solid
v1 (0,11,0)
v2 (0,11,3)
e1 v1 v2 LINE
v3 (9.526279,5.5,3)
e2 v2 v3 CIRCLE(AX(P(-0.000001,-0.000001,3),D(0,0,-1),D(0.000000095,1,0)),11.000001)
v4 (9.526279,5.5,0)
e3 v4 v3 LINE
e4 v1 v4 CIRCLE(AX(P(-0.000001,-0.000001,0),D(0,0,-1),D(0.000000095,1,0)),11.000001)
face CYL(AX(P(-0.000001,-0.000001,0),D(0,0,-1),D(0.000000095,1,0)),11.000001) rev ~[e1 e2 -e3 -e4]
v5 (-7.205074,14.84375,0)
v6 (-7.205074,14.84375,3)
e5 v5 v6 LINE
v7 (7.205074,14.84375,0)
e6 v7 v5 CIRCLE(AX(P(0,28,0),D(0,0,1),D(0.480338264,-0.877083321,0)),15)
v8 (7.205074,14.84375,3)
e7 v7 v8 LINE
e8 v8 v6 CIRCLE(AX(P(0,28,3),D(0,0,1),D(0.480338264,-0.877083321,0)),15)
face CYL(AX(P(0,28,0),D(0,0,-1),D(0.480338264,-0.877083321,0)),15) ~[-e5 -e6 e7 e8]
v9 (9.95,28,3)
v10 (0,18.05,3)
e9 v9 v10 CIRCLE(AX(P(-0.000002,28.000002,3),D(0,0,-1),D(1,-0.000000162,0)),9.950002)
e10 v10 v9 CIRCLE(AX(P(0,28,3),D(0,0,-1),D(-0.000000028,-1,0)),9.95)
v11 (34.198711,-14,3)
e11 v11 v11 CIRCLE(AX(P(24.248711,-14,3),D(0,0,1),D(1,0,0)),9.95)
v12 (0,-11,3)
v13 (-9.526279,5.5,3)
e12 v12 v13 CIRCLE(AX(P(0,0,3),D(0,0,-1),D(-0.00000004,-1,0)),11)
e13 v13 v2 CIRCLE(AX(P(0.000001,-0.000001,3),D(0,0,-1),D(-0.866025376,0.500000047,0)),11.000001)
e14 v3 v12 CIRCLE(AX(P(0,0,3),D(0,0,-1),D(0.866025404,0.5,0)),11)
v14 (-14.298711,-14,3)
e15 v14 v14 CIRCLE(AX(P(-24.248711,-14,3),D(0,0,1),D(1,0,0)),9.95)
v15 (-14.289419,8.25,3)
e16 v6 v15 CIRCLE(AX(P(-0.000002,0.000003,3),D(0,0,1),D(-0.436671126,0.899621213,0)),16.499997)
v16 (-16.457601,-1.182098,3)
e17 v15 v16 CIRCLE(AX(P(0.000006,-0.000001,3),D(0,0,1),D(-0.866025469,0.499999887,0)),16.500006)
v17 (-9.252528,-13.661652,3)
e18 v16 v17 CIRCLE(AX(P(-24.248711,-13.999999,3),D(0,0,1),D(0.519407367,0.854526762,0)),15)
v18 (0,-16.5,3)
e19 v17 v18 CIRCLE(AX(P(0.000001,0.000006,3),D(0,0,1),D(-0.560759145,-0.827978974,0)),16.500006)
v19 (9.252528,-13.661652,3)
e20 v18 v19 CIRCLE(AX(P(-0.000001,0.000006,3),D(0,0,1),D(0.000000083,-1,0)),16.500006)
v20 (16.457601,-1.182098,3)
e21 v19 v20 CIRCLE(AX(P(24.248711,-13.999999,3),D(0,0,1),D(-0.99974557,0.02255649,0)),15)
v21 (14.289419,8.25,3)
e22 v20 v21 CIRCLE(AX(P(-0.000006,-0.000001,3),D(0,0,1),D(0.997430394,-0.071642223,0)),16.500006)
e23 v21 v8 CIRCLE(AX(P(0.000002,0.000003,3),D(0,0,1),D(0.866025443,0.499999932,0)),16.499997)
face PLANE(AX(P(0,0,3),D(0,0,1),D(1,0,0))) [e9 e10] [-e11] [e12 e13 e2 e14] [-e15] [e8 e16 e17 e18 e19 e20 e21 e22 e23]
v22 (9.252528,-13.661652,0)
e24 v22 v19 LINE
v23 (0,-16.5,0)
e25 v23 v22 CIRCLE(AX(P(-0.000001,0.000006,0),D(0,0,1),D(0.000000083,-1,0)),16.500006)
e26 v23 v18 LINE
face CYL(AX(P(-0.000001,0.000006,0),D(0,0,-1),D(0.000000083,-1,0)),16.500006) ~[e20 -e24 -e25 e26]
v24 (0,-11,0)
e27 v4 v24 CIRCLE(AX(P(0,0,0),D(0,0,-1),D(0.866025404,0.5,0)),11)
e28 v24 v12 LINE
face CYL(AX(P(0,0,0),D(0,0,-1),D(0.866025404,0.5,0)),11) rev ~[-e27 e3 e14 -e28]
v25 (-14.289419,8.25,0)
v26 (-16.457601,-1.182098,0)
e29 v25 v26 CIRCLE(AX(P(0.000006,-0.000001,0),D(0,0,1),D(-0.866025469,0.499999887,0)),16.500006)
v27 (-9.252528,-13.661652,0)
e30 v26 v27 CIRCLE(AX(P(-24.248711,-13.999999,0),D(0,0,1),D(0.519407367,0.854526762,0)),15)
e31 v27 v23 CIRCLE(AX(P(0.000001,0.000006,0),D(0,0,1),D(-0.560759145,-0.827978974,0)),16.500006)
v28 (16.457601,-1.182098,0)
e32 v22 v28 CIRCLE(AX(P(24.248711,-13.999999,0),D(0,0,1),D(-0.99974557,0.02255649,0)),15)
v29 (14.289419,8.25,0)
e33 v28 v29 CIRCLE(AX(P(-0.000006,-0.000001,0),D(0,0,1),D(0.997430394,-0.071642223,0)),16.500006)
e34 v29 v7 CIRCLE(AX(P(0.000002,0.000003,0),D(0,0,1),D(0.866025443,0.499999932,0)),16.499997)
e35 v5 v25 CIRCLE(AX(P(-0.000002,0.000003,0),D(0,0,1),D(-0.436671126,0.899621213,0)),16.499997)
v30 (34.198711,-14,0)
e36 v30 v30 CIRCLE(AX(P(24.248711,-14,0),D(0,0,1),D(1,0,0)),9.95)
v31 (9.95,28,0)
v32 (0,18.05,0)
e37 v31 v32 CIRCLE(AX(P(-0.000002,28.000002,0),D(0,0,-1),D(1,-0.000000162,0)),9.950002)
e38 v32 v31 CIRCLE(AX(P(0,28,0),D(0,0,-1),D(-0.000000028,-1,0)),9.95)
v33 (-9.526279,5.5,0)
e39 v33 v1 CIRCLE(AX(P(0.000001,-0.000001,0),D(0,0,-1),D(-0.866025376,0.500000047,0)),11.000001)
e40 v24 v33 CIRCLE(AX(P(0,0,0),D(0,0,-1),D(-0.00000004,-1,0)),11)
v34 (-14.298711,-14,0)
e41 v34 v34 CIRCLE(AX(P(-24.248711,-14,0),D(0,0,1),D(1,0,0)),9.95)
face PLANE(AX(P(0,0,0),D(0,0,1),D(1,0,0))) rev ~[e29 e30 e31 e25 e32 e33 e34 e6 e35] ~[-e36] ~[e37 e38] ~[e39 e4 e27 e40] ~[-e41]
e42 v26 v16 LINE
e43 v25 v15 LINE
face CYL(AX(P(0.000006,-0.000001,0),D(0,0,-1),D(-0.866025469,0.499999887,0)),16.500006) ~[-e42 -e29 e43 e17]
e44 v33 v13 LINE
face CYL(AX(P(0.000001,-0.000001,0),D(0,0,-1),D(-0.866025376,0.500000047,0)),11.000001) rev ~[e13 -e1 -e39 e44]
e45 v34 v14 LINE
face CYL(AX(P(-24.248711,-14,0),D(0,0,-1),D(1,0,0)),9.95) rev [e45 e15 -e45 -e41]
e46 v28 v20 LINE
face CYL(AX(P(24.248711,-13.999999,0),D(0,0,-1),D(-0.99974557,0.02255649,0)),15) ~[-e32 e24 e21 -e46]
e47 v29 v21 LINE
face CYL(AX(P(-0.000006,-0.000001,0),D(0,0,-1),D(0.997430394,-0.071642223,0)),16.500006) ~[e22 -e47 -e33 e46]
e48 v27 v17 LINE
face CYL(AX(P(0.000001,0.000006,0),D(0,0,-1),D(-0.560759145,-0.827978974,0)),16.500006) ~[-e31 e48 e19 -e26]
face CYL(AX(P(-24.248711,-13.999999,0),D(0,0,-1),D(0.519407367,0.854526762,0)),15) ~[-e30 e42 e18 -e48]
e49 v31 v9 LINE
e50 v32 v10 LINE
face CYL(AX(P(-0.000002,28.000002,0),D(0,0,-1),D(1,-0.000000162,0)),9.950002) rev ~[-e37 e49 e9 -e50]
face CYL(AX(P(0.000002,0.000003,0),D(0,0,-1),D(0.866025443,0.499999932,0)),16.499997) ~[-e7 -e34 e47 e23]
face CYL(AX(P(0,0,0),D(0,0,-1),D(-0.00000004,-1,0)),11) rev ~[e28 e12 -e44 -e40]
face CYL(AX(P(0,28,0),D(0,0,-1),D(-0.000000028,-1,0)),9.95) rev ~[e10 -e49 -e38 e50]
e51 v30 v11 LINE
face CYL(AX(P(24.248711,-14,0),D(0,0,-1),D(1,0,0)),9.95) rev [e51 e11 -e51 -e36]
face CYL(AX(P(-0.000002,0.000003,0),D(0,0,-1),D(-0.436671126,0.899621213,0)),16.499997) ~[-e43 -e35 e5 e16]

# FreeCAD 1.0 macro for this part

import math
import FreeCAD as App
import Part
import Sketcher

doc = App.newDocument("Part")
body = doc.addObject("PartDesign::Body", "Body")

sketch1 = body.newObject("Sketcher::SketchObject", "Sketch")
sketch1.AttachmentSupport = (doc.getObject("XY_Plane"), [""])
sketch1.MapMode = "FlatFace"
sketch1.addGeometry([
    Part.ArcOfCircle(Part.Circle(App.Vector(0, 0, 0), App.Vector(0, 0, 1), 16), math.radians(30), math.radians(64)),
    Part.ArcOfCircle(Part.Circle(App.Vector(0, 28, 0), App.Vector(0, 0, 1), 15), math.radians(-61), math.radians(241)),
    Part.ArcOfCircle(Part.Circle(App.Vector(0, 0, 0), App.Vector(0, 0, 1), 16), math.radians(116), math.radians(150)),
    Part.ArcOfCircle(Part.Circle(App.Vector(0, 0, 0), App.Vector(0, 0, 1), 17), math.radians(150), math.radians(184)),
    Part.ArcOfCircle(Part.Circle(App.Vector(-24, -14, 0), App.Vector(0, 0, 1), 15), math.radians(59), math.radians(361)),
    Part.ArcOfCircle(Part.Circle(App.Vector(0, 0, 0), App.Vector(0, 0, 1), 17), math.radians(-124), math.radians(-90)),
    Part.ArcOfCircle(Part.Circle(App.Vector(0, 0, 0), App.Vector(0, 0, 1), 17), math.radians(-90), math.radians(-56)),
    Part.ArcOfCircle(Part.Circle(App.Vector(24, -14, 0), App.Vector(0, 0, 1), 15), math.radians(179), math.radians(481)),
    Part.ArcOfCircle(Part.Circle(App.Vector(0, 0, 0), App.Vector(0, 0, 1), 17), math.radians(-4), math.radians(30)),
    Part.Circle(App.Vector(-24, -14, 0), App.Vector(0, 0, 1), 10),
    Part.Circle(App.Vector(24, -14, 0), App.Vector(0, 0, 1), 10),
    Part.ArcOfCircle(Part.Circle(App.Vector(0, 0, 0), App.Vector(0, 0, 1), 11), math.radians(90), math.radians(150)),
    Part.ArcOfCircle(Part.Circle(App.Vector(0, 0, 0), App.Vector(0, 0, 1), 11), math.radians(30), math.radians(90)),
    Part.ArcOfCircle(Part.Circle(App.Vector(0, 0, 0), App.Vector(0, 0, 1), 11), math.radians(-90), math.radians(30)),
    Part.ArcOfCircle(Part.Circle(App.Vector(0, 0, 0), App.Vector(0, 0, 1), 11), math.radians(150), math.radians(270)),
    Part.ArcOfCircle(Part.Circle(App.Vector(0, 28, 0), App.Vector(0, 0, 1), 10), math.radians(0), math.radians(270)),
    Part.ArcOfCircle(Part.Circle(App.Vector(0, 28, 0), App.Vector(0, 0, 1), 10), math.radians(-90), math.radians(0)),
], False)
sketch1.addConstraint([
    Sketcher.Constraint("Coincident", 0, 2, 1, 1),
    Sketcher.Constraint("Coincident", 1, 2, 2, 1),
    Sketcher.Constraint("Tangent", 2, 2, 3, 1),
    Sketcher.Constraint("Coincident", 3, 2, 4, 1),
    Sketcher.Constraint("Coincident", 4, 2, 5, 1),
    Sketcher.Constraint("Tangent", 5, 2, 6, 1),
    Sketcher.Constraint("Coincident", 6, 2, 7, 1),
    Sketcher.Constraint("Coincident", 7, 2, 8, 1),
    Sketcher.Constraint("Tangent", 8, 2, 0, 1),
    Sketcher.Constraint("Tangent", 11, 1, 12, 2),
    Sketcher.Constraint("Tangent", 12, 1, 13, 2),
    Sketcher.Constraint("Tangent", 13, 1, 14, 2),
    Sketcher.Constraint("Tangent", 14, 1, 11, 2),
    Sketcher.Constraint("Tangent", 15, 1, 16, 2),
    Sketcher.Constraint("Coincident", 16, 1, 15, 2),
    Sketcher.Constraint("Coincident", 0, 3, -1, 1),
    Sketcher.Constraint("Coincident", 2, 3, -1, 1),
    Sketcher.Constraint("Coincident", 5, 3, -1, 1),
    Sketcher.Constraint("Coincident", 11, 3, -1, 1),
    Sketcher.Constraint("Coincident", 9, 3, 4, 3),
    Sketcher.Constraint("Coincident", 10, 3, 7, 3),
    Sketcher.Constraint("Coincident", 15, 3, 1, 3),
    Sketcher.Constraint("Equal", 0, 2),
    Sketcher.Constraint("Equal", 1, 4),
    Sketcher.Constraint("Equal", 3, 5),
    Sketcher.Constraint("Equal", 5, 6),
    Sketcher.Constraint("Equal", 4, 7),
    Sketcher.Constraint("Equal", 6, 8),
    Sketcher.Constraint("Equal", 9, 10),
    Sketcher.Constraint("Equal", 11, 12),
    Sketcher.Constraint("Equal", 10, 15),
    Sketcher.Constraint("Symmetric", 4, 3, 7, 3, -2),
    Sketcher.Constraint("PointOnObject", 1, 3, -2),
    Sketcher.Constraint("PointOnObject", 3, 3, -1),
    Sketcher.Constraint("PointOnObject", 5, 2, -2),
    Sketcher.Constraint("PointOnObject", 11, 1, -2),
    Sketcher.Constraint("PointOnObject", 13, 1, -2),
    Sketcher.Constraint("PointOnObject", 16, 1, -2),
    Sketcher.Constraint("Horizontal", 2, 2, 8, 2),
    Sketcher.Constraint("Horizontal", 12, 1, 14, 1),
    Sketcher.Constraint("Horizontal", 16, 3, 15, 1),
    Sketcher.Constraint("Radius", 1, 15.0),
    Sketcher.Constraint("Radius", 11, 11.000001),
    Sketcher.Constraint("Diameter", 9, 19.9),
    Sketcher.Constraint("DistanceY", -1, 1, 1, 3, 28.0),
    Sketcher.Constraint("DistanceY", 4, 3, -1, 1, 13.999999),
    Sketcher.Constraint("DistanceY", 5, 2, -1, 1, 16.5),
    Sketcher.Constraint("DistanceY", -1, 1, 12, 1, 5.5),
    Sketcher.Constraint("DistanceY", -1, 1, 2, 2, 8.25),
    Sketcher.Constraint("DistanceX", 3, 2, -1, 1, 16.457601),
])
pad1 = body.newObject("PartDesign::Pad", "Pad")
pad1.Profile = sketch1
pad1.Length = 3

doc.recompute()
